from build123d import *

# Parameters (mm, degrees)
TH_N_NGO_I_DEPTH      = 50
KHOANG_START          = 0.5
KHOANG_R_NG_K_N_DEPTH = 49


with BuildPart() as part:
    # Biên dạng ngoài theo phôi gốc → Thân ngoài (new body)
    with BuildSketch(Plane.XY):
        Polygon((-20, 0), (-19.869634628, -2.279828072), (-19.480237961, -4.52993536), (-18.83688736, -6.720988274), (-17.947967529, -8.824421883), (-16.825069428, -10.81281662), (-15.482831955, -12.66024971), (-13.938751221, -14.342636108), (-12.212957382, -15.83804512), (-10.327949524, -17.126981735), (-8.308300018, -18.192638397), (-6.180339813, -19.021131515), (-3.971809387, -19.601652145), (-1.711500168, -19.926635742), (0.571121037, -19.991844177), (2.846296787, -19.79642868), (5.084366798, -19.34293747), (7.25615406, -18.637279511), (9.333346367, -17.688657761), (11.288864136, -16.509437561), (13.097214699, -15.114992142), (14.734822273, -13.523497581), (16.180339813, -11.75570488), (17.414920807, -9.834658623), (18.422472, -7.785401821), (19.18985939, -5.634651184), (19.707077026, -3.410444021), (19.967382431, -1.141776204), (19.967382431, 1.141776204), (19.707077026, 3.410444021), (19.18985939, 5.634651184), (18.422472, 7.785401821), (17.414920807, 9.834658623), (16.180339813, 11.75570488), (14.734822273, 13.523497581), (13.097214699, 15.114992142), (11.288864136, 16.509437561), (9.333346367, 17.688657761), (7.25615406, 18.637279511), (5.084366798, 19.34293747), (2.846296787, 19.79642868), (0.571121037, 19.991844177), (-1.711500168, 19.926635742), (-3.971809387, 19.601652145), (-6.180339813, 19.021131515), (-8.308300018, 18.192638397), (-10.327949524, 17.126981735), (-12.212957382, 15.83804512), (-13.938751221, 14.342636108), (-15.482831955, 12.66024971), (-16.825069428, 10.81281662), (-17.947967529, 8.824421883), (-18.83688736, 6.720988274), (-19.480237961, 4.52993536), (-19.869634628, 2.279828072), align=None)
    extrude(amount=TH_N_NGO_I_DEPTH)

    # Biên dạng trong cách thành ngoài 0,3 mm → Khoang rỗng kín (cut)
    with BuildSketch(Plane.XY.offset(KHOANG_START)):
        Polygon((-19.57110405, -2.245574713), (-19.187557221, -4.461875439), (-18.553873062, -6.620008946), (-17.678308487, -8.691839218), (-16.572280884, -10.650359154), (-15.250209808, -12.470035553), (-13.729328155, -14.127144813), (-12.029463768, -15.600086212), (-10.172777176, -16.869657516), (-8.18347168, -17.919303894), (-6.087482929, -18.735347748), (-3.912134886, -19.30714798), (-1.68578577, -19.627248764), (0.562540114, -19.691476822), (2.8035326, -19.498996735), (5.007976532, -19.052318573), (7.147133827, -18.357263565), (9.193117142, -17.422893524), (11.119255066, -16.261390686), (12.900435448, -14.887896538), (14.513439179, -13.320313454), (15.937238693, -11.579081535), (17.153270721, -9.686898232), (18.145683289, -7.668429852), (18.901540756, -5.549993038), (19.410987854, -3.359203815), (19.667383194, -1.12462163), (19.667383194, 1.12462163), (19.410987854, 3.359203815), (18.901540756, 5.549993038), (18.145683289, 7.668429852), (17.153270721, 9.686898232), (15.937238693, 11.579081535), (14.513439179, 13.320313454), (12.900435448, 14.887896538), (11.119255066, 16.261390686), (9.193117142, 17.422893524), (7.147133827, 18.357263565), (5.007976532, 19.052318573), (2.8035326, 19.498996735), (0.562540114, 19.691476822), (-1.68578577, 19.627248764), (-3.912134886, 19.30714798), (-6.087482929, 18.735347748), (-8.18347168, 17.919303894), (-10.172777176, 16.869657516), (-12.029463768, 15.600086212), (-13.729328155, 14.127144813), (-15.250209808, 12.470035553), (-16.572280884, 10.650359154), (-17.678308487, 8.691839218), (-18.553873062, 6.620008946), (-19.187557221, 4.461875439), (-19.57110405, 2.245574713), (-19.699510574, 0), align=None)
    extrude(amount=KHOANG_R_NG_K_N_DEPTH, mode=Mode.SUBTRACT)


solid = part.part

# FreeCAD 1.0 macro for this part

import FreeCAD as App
import Part
import Sketcher
from FreeCAD import Vector
Q = App.Units.Quantity


def add_polygon(sketch, points):
    """Adds a closed chain of lines whose ends are joined by coincident constraints."""
    first, n = sketch.GeometryCount, len(points)
    for a, b in zip(points, points[1:] + points[:1]):
        sketch.addGeometry(Part.LineSegment(App.Vector(*a, 0), App.Vector(*b, 0)), False)
    for i in range(n):
        sketch.addConstraint(Sketcher.Constraint("Coincident", first + i, 2, first + (i + 1) % n, 1))

doc = App.newDocument("Part")
body = doc.addObject("PartDesign::Body", "Body")

# Sketch on XY plane
sketch1 = doc.addObject("Sketcher::SketchObject", "Sketch")
body.addObject(sketch1)
sketch1.AttachmentSupport = (doc.XY_Plane, [""])
sketch1.MapMode = "FlatFace"
add_polygon(sketch1, [(-20, 0), (-19.869635, -2.279828), (-19.480238, -4.529935), (-18.836887, -6.720988), (-17.947968, -8.824422), (-16.825069, -10.812817), (-15.482832, -12.66025), (-13.938751, -14.342636), (-12.212957, -15.838045), (-10.32795, -17.126982), (-8.3083, -18.192638), (-6.18034, -19.021132), (-3.971809, -19.601652), (-1.7115, -19.926636), (0.571121, -19.991844), (2.846297, -19.796429), (5.084367, -19.342937), (7.256154, -18.63728), (9.333346, -17.688658), (11.288864, -16.509438), (13.097215, -15.114992), (14.734822, -13.523498), (16.18034, -11.755705), (17.414921, -9.834659), (18.422472, -7.785402), (19.189859, -5.634651), (19.707077, -3.410444), (19.967382, -1.141776), (19.967382, 1.141776), (19.707077, 3.410444), (19.189859, 5.634651), (18.422472, 7.785402), (17.414921, 9.834659), (16.18034, 11.755705), (14.734822, 13.523498), (13.097215, 15.114992), (11.288864, 16.509438), (9.333346, 17.688658), (7.256154, 18.63728), (5.084367, 19.342937), (2.846297, 19.796429), (0.571121, 19.991844), (-1.7115, 19.926636), (-3.971809, 19.601652), (-6.18034, 19.021132), (-8.3083, 18.192638), (-10.32795, 17.126982), (-12.212957, 15.838045), (-13.938751, 14.342636), (-15.482832, 12.66025), (-16.825069, 10.812817), (-17.947968, 8.824422), (-18.836887, 6.720988), (-19.480238, 4.529935), (-19.869635, 2.279828)])  # lines 0-54
sketch1.addConstraint([
    Sketcher.Constraint("Vertical", 27),
    Sketcher.Constraint("PointOnObject", 54, 2, -1),
    Sketcher.Constraint("DistanceX", 54, 2, -1, 1, Q("20 mm")),
    Sketcher.Constraint("DistanceY", 17, 2, 22, 2, Q("7.853999 mm")),
    Sketcher.Constraint("DistanceY", 31, 2, 36, 2, Q("7.853999 mm")),
    Sketcher.Constraint("DistanceX", 9, 2, -1, 1, Q("8.3083 mm")),
    Sketcher.Constraint("DistanceX", 12, 2, -1, 1, Q("1.7115 mm")),
    Sketcher.Constraint("DistanceY", 23, 2, -1, 1, Q("7.785402 mm")),
    Sketcher.Constraint("DistanceY", -1, 1, 30, 2, Q("7.785402 mm")),
    Sketcher.Constraint("DistanceX", 41, 2, -1, 1, Q("1.7115 mm")),
    Sketcher.Constraint("DistanceX", 44, 2, -1, 1, Q("8.3083 mm")),
    Sketcher.Constraint("DistanceX", 3, 2, 4, 2, Q("1.122898 mm")),
    Sketcher.Constraint("DistanceY", 6, 2, 1, 2, Q("9.812701 mm")),
    Sketcher.Constraint("DistanceX", 6, 2, 8, 2, Q("3.610802 mm")),
    Sketcher.Constraint("DistanceY", 12, 2, 15, 2, Q("0.583698 mm")),
    Sketcher.Constraint("DistanceY", 15, 2, 18, 2, Q("2.8335 mm")),
    Sketcher.Constraint("DistanceX", 20, 2, 22, 2, Q("2.680099 mm")),
    Sketcher.Constraint("DistanceX", 33, 2, 31, 2, Q("2.680099 mm")),
    Sketcher.Constraint("DistanceY", 35, 2, 38, 2, Q("2.8335 mm")),
    Sketcher.Constraint("DistanceY", 38, 2, 41, 2, Q("0.583698 mm")),
    Sketcher.Constraint("DistanceX", 47, 2, 45, 2, Q("3.610802 mm")),
    Sketcher.Constraint("DistanceX", 50, 2, 49, 2, Q("1.122898 mm")),
    Sketcher.Constraint("Distance", 6, Q("2.283552 mm")),
    Sketcher.Constraint("Distance", 9, Q("2.283552 mm")),
    Sketcher.Constraint("Distance", 22, Q("2.283552 mm")),
    Sketcher.Constraint("Distance", 32, Q("2.283552 mm")),
    Sketcher.Constraint("Distance", 45, Q("2.283552 mm")),
    Sketcher.Constraint("Distance", 48, Q("2.283552 mm")),
    Sketcher.Constraint("DistanceY", 27, 1, 27, 2, Q("2.283552 mm")),
    Sketcher.Constraint("DistanceY", 0, 2, -1, 1, Q("2.279828 mm")),
    Sketcher.Constraint("DistanceY", 2, 2, -1, 1, Q("6.720988 mm")),
    Sketcher.Constraint("DistanceY", 3, 2, -1, 1, Q("8.824422 mm")),
    Sketcher.Constraint("DistanceX", 4, 2, -1, 1, Q("16.825069 mm")),
    Sketcher.Constraint("DistanceX", 5, 2, -1, 1, Q("15.482832 mm")),
    Sketcher.Constraint("DistanceY", 5, 2, -1, 1, Q("12.66025 mm")),
    Sketcher.Constraint("DistanceX", 6, 2, -1, 1, Q("13.938751 mm")),
    Sketcher.Constraint("DistanceY", 8, 2, -1, 1, Q("17.126982 mm")),
    Sketcher.Constraint("DistanceX", 10, 2, -1, 1, Q("6.18034 mm")),
    Sketcher.Constraint("DistanceY", 10, 2, -1, 1, Q("19.021132 mm")),
    Sketcher.Constraint("DistanceX", 11, 2, -1, 1, Q("3.971809 mm")),
    Sketcher.Constraint("DistanceX", -1, 1, 13, 2, Q("0.571121 mm")),
    Sketcher.Constraint("DistanceY", 14, 2, -1, 1, Q("19.796429 mm")),
    Sketcher.Constraint("DistanceY", 16, 2, -1, 1, Q("18.63728 mm")),
    Sketcher.Constraint("DistanceX", -1, 1, 21, 2, Q("16.18034 mm")),
    Sketcher.Constraint("DistanceX", -1, 1, 22, 2, Q("17.414921 mm")),
    Sketcher.Constraint("DistanceY", 22, 2, -1, 1, Q("9.834659 mm")),
    Sketcher.Constraint("DistanceX", -1, 1, 23, 2, Q("18.422472 mm")),
    Sketcher.Constraint("DistanceX", -1, 1, 24, 2, Q("19.189859 mm")),
    Sketcher.Constraint("DistanceY", 24, 2, -1, 1, Q("5.634651 mm")),
    Sketcher.Constraint("DistanceX", -1, 1, 29, 2, Q("19.189859 mm")),
    Sketcher.Constraint("DistanceY", -1, 1, 29, 2, Q("5.634651 mm")),
    Sketcher.Constraint("DistanceX", -1, 1, 30, 2, Q("18.422472 mm")),
    Sketcher.Constraint("DistanceX", -1, 1, 31, 2, Q("17.414921 mm")),
    Sketcher.Constraint("DistanceY", -1, 1, 31, 2, Q("9.834659 mm")),
    Sketcher.Constraint("DistanceX", -1, 1, 32, 2, Q("16.18034 mm")),
    Sketcher.Constraint("DistanceY", -1, 1, 37, 2, Q("18.63728 mm")),
    Sketcher.Constraint("DistanceY", -1, 1, 39, 2, Q("19.796429 mm")),
    Sketcher.Constraint("DistanceX", -1, 1, 40, 2, Q("0.571121 mm")),
    Sketcher.Constraint("DistanceX", 42, 2, -1, 1, Q("3.971809 mm")),
    Sketcher.Constraint("DistanceX", 43, 2, -1, 1, Q("6.18034 mm")),
    Sketcher.Constraint("DistanceY", -1, 1, 43, 2, Q("19.021132 mm")),
    Sketcher.Constraint("DistanceY", -1, 1, 44, 2, Q("18.192638 mm")),
    Sketcher.Constraint("DistanceX", 45, 2, -1, 1, Q("10.32795 mm")),
    Sketcher.Constraint("DistanceX", 48, 2, -1, 1, Q("15.482832 mm")),
    Sketcher.Constraint("DistanceY", -1, 1, 48, 2, Q("12.66025 mm")),
    Sketcher.Constraint("DistanceX", 49, 2, -1, 1, Q("16.825069 mm")),
    Sketcher.Constraint("DistanceY", -1, 1, 50, 2, Q("8.824422 mm")),
    Sketcher.Constraint("DistanceY", -1, 1, 51, 2, Q("6.720988 mm")),
    Sketcher.Constraint("DistanceY", -1, 1, 53, 2, Q("2.279828 mm")),
    Sketcher.Constraint("DistanceX", 1, 2, 2, 2, Q("0.643351 mm")),
    Sketcher.Constraint("DistanceX", 2, 2, 3, 2, Q("0.88892 mm")),
    Sketcher.Constraint("DistanceY", 4, 2, 2, 2, Q("4.091828 mm")),
    Sketcher.Constraint("DistanceY", 7, 2, 6, 2, Q("1.495409 mm")),
    Sketcher.Constraint("DistanceX", 3, 2, 7, 2, Q("5.73501 mm")),
    Sketcher.Constraint("DistanceY", 11, 2, 10, 2, Q("0.580521 mm")),
    Sketcher.Constraint("DistanceY", 12, 2, 7, 2, Q("4.088591 mm")),
    Sketcher.Constraint("DistanceY", 13, 2, 12, 2, Q("0.065208 mm")),
    Sketcher.Constraint("DistanceX", 14, 2, 15, 2, Q("2.23807 mm")),
    Sketcher.Constraint("DistanceX", 15, 2, 17, 2, Q("4.24898 mm")),
    Sketcher.Constraint("DistanceX", 16, 2, 18, 2, Q("4.03271 mm")),
    Sketcher.Constraint("DistanceX", 18, 2, 19, 2, Q("1.808351 mm")),
    Sketcher.Constraint("DistanceX", 17, 2, 19, 2, Q("3.763868 mm")),
    Sketcher.Constraint("DistanceX", 18, 2, 20, 2, Q("3.445958 mm")),
    Sketcher.Constraint("DistanceY", 18, 2, 20, 2, Q("2.98594 mm")),
    Sketcher.Constraint("DistanceY", 19, 2, 23, 2, Q("7.32959 mm")),
    Sketcher.Constraint("DistanceY", 21, 2, 25, 2, Q("8.345261 mm")),
    Sketcher.Constraint("DistanceX", 23, 2, 26, 2, Q("1.54491 mm")),
    Sketcher.Constraint("DistanceY", 21, 2, 26, 2, Q("10.613929 mm")),
    Sketcher.Constraint("DistanceY", 26, 2, 28, 2, Q("4.55222 mm")),
    Sketcher.Constraint("DistanceY", 31, 2, 33, 2, Q("3.688839 mm")),
    Sketcher.Constraint("DistanceY", 30, 2, 34, 2, Q("7.32959 mm")),
    Sketcher.Constraint("DistanceX", 35, 2, 34, 2, Q("1.808351 mm")),
    Sketcher.Constraint("DistanceX", 35, 2, 33, 2, Q("3.445958 mm")),
    Sketcher.Constraint("DistanceY", 33, 2, 35, 2, Q("2.98594 mm")),
    Sketcher.Constraint("DistanceX", 36, 2, 34, 2, Q("3.763868 mm")),
    Sketcher.Constraint("DistanceX", 37, 2, 35, 2, Q("4.03271 mm")),
    Sketcher.Constraint("DistanceX", 38, 2, 36, 2, Q("4.24898 mm")),
    Sketcher.Constraint("DistanceX", 39, 2, 38, 2, Q("2.23807 mm")),
    Sketcher.Constraint("DistanceY", 41, 2, 40, 2, Q("0.065208 mm")),
    Sketcher.Constraint("DistanceY", 43, 2, 42, 2, Q("0.580521 mm")),
    Sketcher.Constraint("DistanceY", 46, 2, 41, 2, Q("4.088591 mm")),
    Sketcher.Constraint("DistanceY", 49, 2, 47, 2, Q("3.529819 mm")),
    Sketcher.Constraint("DistanceX", 50, 2, 46, 2, Q("5.73501 mm")),
    Sketcher.Constraint("DistanceX", 51, 2, 50, 2, Q("0.88892 mm")),
    Sketcher.Constraint("DistanceX", 52, 2, 51, 2, Q("0.643351 mm")),
    Sketcher.Constraint("DistanceY", 52, 2, 49, 2, Q("6.282881 mm")),
    Sketcher.Constraint("Distance", 0, Q("2.283552 mm")),
    Sketcher.Constraint("Distance", 25, Q("2.283552 mm")),
    Sketcher.Constraint("Distance", 28, Q("2.283553 mm")),
    Sketcher.Constraint("Distance", 53, Q("2.283553 mm")),
])
pad1 = doc.addObject("PartDesign::Pad", "Pad")
body.addObject(pad1)
pad1.Profile = sketch1
pad1.Length = 50

# Sketch on XY plane
sketch2 = doc.addObject("Sketcher::SketchObject", "Sketch001")
body.addObject(sketch2)
sketch2.AttachmentSupport = (doc.XY_Plane, [""])
sketch2.MapMode = "FlatFace"
sketch2.AttachmentOffset = App.Placement(Vector(0, 0, 0.5), App.Rotation())
add_polygon(sketch2, [(-19.571104, -2.245575), (-19.187557, -4.461875), (-18.553873, -6.620009), (-17.678308, -8.691839), (-16.572281, -10.650359), (-15.25021, -12.470036), (-13.729328, -14.127145), (-12.029464, -15.600086), (-10.172777, -16.869658), (-8.183472, -17.919304), (-6.087483, -18.735348), (-3.912135, -19.307148), (-1.685786, -19.627249), (0.56254, -19.691477), (2.803533, -19.498997), (5.007977, -19.052319), (7.147134, -18.357264), (9.193117, -17.422894), (11.119255, -16.261391), (12.900435, -14.887897), (14.513439, -13.320313), (15.937239, -11.579082), (17.153271, -9.686898), (18.145683, -7.66843), (18.901541, -5.549993), (19.410988, -3.359204), (19.667383, -1.124622), (19.667383, 1.124622), (19.410988, 3.359204), (18.901541, 5.549993), (18.145683, 7.66843), (17.153271, 9.686898), (15.937239, 11.579082), (14.513439, 13.320313), (12.900435, 14.887897), (11.119255, 16.261391), (9.193117, 17.422894), (7.147134, 18.357264), (5.007977, 19.052319), (2.803533, 19.498997), (0.56254, 19.691477), (-1.685786, 19.627249), (-3.912135, 19.307148), (-6.087483, 18.735348), (-8.183472, 17.919304), (-10.172777, 16.869658), (-12.029464, 15.600086), (-13.729328, 14.127145), (-15.25021, 12.470036), (-16.572281, 10.650359), (-17.678308, 8.691839), (-18.553873, 6.620009), (-19.187557, 4.461875), (-19.571104, 2.245575), (-19.699511, 0)])  # lines 0-54
sketch2.addConstraint([
    Sketcher.Constraint("Vertical", 26),
    Sketcher.Constraint("PointOnObject", 53, 2, -1),
    Sketcher.Constraint("DistanceY", 18, 2, 21, 2, Q("5.200998 mm")),
    Sketcher.Constraint("DistanceY", 30, 2, 33, 2, Q("5.200998 mm")),
    Sketcher.Constraint("DistanceY", 21, 2, -1, 1, Q("9.686898 mm")),
    Sketcher.Constraint("DistanceY", -1, 1, 30, 2, Q("9.686898 mm")),
    Sketcher.Constraint("DistanceX", 2, 2, 4, 2, Q("2.428099 mm")),
    Sketcher.Constraint("DistanceY", 7, 2, 3, 2, Q("6.219298 mm")),
    Sketcher.Constraint("DistanceY", 10, 2, 9, 2, Q("0.5718 mm")),
    Sketcher.Constraint("DistanceY", 11, 2, 10, 2, Q("0.320101 mm")),
    Sketcher.Constraint("DistanceX", 13, 2, 15, 2, Q("4.343601 mm")),
    Sketcher.Constraint("DistanceX", 15, 2, 18, 2, Q("5.753302 mm")),
    Sketcher.Constraint("DistanceY", 13, 2, 18, 2, Q("4.6111 mm")),
    Sketcher.Constraint("DistanceX", 19, 2, 20, 2, Q("1.4238 mm")),
    Sketcher.Constraint("DistanceX", 19, 2, 23, 2, Q("4.388102 mm")),
    Sketcher.Constraint("DistanceX", 22, 2, 25, 2, Q("1.5217 mm")),
    Sketcher.Constraint("DistanceX", 29, 2, 26, 2, Q("1.5217 mm")),
    Sketcher.Constraint("DistanceX", 32, 2, 31, 2, Q("1.4238 mm")),
    Sketcher.Constraint("DistanceX", 32, 2, 28, 2, Q("4.388102 mm")),
    Sketcher.Constraint("DistanceX", 36, 2, 33, 2, Q("5.753302 mm")),
    Sketcher.Constraint("DistanceX", 38, 2, 36, 2, Q("4.343601 mm")),
    Sketcher.Constraint("DistanceY", 33, 2, 38, 2, Q("4.6111 mm")),
    Sketcher.Constraint("DistanceY", 41, 2, 40, 2, Q("0.320101 mm")),
    Sketcher.Constraint("DistanceY", 42, 2, 41, 2, Q("0.5718 mm")),
    Sketcher.Constraint("DistanceY", 48, 2, 44, 2, Q("6.219298 mm")),
    Sketcher.Constraint("DistanceX", 49, 2, 47, 2, Q("2.428099 mm")),
    Sketcher.Constraint("DistanceY", 52, 2, 51, 2, Q("2.216301 mm")),
    Sketcher.Constraint("DistanceY", 0, 2, 54, 2, Q("2.216301 mm")),
    Sketcher.Constraint("DistanceY", 26, 1, 26, 2, Q("2.249243 mm")),
    Sketcher.Constraint("DistanceY", 1, 2, -1, 1, Q("6.620009 mm")),
    Sketcher.Constraint("DistanceX", 2, 2, -1, 1, Q("17.678308 mm")),
    Sketcher.Constraint("DistanceY", 2, 2, -1, 1, Q("8.691839 mm")),
    Sketcher.Constraint("DistanceX", 3, 2, -1, 1, Q("16.572281 mm")),
    Sketcher.Constraint("DistanceY", 3, 2, -1, 1, Q("10.650359 mm")),
    Sketcher.Constraint("DistanceX", 5, 2, -1, 1, Q("13.729328 mm")),
    Sketcher.Constraint("DistanceX", 8, 2, -1, 1, Q("8.183472 mm")),
    Sketcher.Constraint("DistanceY", 11, 2, -1, 1, Q("19.627249 mm")),
    Sketcher.Constraint("DistanceX", -1, 1, 12, 2, Q("0.56254 mm")),
    Sketcher.Constraint("DistanceY", 14, 2, -1, 1, Q("19.052319 mm")),
    Sketcher.Constraint("DistanceY", 17, 2, -1, 1, Q("16.261391 mm")),
    Sketcher.Constraint("DistanceX", -1, 1, 19, 2, Q("14.513439 mm")),
    Sketcher.Constraint("DistanceY", 20, 2, -1, 1, Q("11.579082 mm")),
    Sketcher.Constraint("DistanceX", -1, 1, 21, 2, Q("17.153271 mm")),
    Sketcher.Constraint("DistanceY", 22, 2, -1, 1, Q("7.66843 mm")),
    Sketcher.Constraint("DistanceY", 25, 2, -1, 1, Q("1.124622 mm")),
    Sketcher.Constraint("DistanceX", -1, 1, 28, 2, Q("18.901541 mm")),
    Sketcher.Constraint("DistanceY", -1, 1, 29, 2, Q("7.66843 mm")),
    Sketcher.Constraint("DistanceX", -1, 1, 30, 2, Q("17.153271 mm")),
    Sketcher.Constraint("DistanceY", -1, 1, 31, 2, Q("11.579082 mm")),
    Sketcher.Constraint("DistanceY", -1, 1, 34, 2, Q("16.261391 mm")),
    Sketcher.Constraint("DistanceY", -1, 1, 37, 2, Q("19.052319 mm")),
    Sketcher.Constraint("DistanceX", -1, 1, 39, 2, Q("0.56254 mm")),
    Sketcher.Constraint("DistanceY", -1, 1, 40, 2, Q("19.627249 mm")),
    Sketcher.Constraint("DistanceX", 43, 2, -1, 1, Q("8.183472 mm")),
    Sketcher.Constraint("DistanceX", 46, 2, -1, 1, Q("13.729328 mm")),
    Sketcher.Constraint("DistanceX", 47, 2, -1, 1, Q("15.25021 mm")),
    Sketcher.Constraint("DistanceX", 48, 2, -1, 1, Q("16.572281 mm")),
    Sketcher.Constraint("DistanceY", -1, 1, 48, 2, Q("10.650359 mm")),
    Sketcher.Constraint("DistanceY", -1, 1, 49, 2, Q("8.691839 mm")),
    Sketcher.Constraint("DistanceY", -1, 1, 50, 2, Q("6.620009 mm")),
    Sketcher.Constraint("DistanceX", 53, 2, -1, 1, Q("19.699511 mm")),
    Sketcher.Constraint("DistanceX", 0, 2, 2, 2, Q("1.509249 mm")),
    Sketcher.Constraint("DistanceY", 4, 2, 0, 2, Q("8.00816 mm")),
    Sketcher.Constraint("DistanceY", 5, 2, 4, 2, Q("1.657109 mm")),
    Sketcher.Constraint("DistanceY", 6, 2, 5, 2, Q("1.472941 mm")),
    Sketcher.Constraint("DistanceX", 1, 2, 6, 2, Q("6.524409 mm")),
    Sketcher.Constraint("DistanceY", 7, 2, 6, 2, Q("1.269571 mm")),
    Sketcher.Constraint("DistanceX", 5, 2, 7, 2, Q("3.556551 mm")),
    Sketcher.Constraint("DistanceY", 8, 2, 5, 2, Q("3.792159 mm")),
    Sketcher.Constraint("DistanceX", 8, 2, 9, 2, Q("2.095989 mm")),
    Sketcher.Constraint("DistanceX", 6, 2, 9, 2, Q("5.941981 mm")),
    Sketcher.Constraint("DistanceX", 9, 2, 10, 2, Q("2.175348 mm")),
    Sketcher.Constraint("DistanceX", 10, 2, 11, 2, Q("2.226349 mm")),
    Sketcher.Constraint("DistanceY", 12, 2, 11, 2, Q("0.064228 mm")),
    Sketcher.Constraint("DistanceX", 11, 2, 13, 2, Q("4.489318 mm")),
    Sketcher.Constraint("DistanceX", 10, 2, 14, 2, Q("8.920111 mm")),
    Sketcher.Constraint("DistanceY", 15, 2, 16, 2, Q("0.93437 mm")),
    Sketcher.Constraint("DistanceX", 14, 2, 16, 2, Q("4.185141 mm")),
    Sketcher.Constraint("DistanceX", 15, 2, 17, 2, Q("3.972121 mm")),
    Sketcher.Constraint("DistanceY", 16, 2, 19, 2, Q("4.10258 mm")),
    Sketcher.Constraint("DistanceY", 19, 2, 20, 2, Q("1.741232 mm")),
    Sketcher.Constraint("DistanceX", 17, 2, 22, 2, Q("7.026428 mm")),
    Sketcher.Constraint("DistanceY", 20, 2, 23, 2, Q("6.029088 mm")),
    Sketcher.Constraint("DistanceY", 23, 2, 24, 2, Q("2.190789 mm")),
    Sketcher.Constraint("DistanceX", 20, 2, 24, 2, Q("3.473749 mm")),
    Sketcher.Constraint("DistanceY", 27, 2, 28, 2, Q("2.190789 mm")),
    Sketcher.Constraint("DistanceY", 26, 2, 28, 2, Q("4.425371 mm")),
    Sketcher.Constraint("DistanceX", 31, 2, 27, 2, Q("3.473749 mm")),
    Sketcher.Constraint("DistanceY", 31, 2, 32, 2, Q("1.741232 mm")),
    Sketcher.Constraint("DistanceX", 34, 2, 33, 2, Q("1.78118 mm")),
    Sketcher.Constraint("DistanceX", 34, 2, 29, 2, Q("7.026428 mm")),
    Sketcher.Constraint("DistanceX", 35, 2, 33, 2, Q("3.707318 mm")),
    Sketcher.Constraint("DistanceY", 32, 2, 35, 2, Q("4.10258 mm")),
    Sketcher.Constraint("DistanceY", 35, 2, 36, 2, Q("0.93437 mm")),
    Sketcher.Constraint("DistanceX", 37, 2, 35, 2, Q("4.185141 mm")),
    Sketcher.Constraint("DistanceY", 38, 2, 39, 2, Q("0.19248 mm")),
    Sketcher.Constraint("DistanceX", 40, 2, 38, 2, Q("4.489318 mm")),
    Sketcher.Constraint("DistanceX", 41, 2, 40, 2, Q("2.226349 mm")),
    Sketcher.Constraint("DistanceX", 42, 2, 41, 2, Q("2.175348 mm")),
    Sketcher.Constraint("DistanceX", 44, 2, 40, 2, Q("8.486991 mm")),
    Sketcher.Constraint("DistanceY", 45, 2, 44, 2, Q("1.269571 mm")),
    Sketcher.Constraint("DistanceX", 45, 2, 42, 2, Q("5.941981 mm")),
    Sketcher.Constraint("DistanceY", 46, 2, 45, 2, Q("1.472941 mm")),
    Sketcher.Constraint("DistanceY", 46, 2, 43, 2, Q("3.792159 mm")),
    Sketcher.Constraint("DistanceY", 47, 2, 46, 2, Q("1.657109 mm")),
    Sketcher.Constraint("DistanceX", 50, 2, 45, 2, Q("6.524409 mm")),
    Sketcher.Constraint("DistanceX", 51, 2, 49, 2, Q("1.509249 mm")),
    Sketcher.Constraint("DistanceY", 0, 2, 51, 2, Q("8.923751 mm")),
    Sketcher.Constraint("DistanceX", 52, 2, 50, 2, Q("1.017231 mm")),
    Sketcher.Constraint("DistanceX", 54, 2, 1, 2, Q("1.017231 mm")),
])
pocket1 = doc.addObject("PartDesign::Pocket", "Pocket")
body.addObject(pocket1)
pocket1.Profile = sketch2
pocket1.Length = 49
pocket1.Reversed = True

doc.recompute()
